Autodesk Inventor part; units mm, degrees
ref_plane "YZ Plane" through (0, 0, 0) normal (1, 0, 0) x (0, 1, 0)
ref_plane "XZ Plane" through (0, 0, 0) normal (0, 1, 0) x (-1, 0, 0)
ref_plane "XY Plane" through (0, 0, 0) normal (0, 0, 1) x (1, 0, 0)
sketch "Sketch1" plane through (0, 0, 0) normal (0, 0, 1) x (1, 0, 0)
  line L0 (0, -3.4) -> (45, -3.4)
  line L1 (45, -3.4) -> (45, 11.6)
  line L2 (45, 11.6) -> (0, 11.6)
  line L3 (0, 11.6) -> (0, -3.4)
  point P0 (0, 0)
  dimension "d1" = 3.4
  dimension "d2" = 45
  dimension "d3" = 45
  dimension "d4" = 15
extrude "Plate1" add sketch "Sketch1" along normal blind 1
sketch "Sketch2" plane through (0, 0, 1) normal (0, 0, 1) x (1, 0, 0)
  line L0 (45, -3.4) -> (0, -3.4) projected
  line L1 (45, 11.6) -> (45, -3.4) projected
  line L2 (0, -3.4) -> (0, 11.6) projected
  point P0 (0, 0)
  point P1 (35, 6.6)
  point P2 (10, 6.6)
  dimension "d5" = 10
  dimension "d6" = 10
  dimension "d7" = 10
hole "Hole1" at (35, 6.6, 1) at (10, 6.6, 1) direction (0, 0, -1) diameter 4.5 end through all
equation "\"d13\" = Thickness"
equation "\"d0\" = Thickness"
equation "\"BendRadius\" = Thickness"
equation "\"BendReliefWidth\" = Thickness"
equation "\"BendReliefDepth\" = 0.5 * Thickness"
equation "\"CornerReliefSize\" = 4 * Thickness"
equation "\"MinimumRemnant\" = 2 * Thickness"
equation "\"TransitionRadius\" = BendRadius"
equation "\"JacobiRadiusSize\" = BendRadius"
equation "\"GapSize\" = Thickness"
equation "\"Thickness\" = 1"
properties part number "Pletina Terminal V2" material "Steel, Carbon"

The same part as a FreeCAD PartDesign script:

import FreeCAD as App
import Part
import Sketcher

V = App.Vector

doc = App.newDocument("Part")
body = doc.addObject("PartDesign::Body", "Body")

sketch1 = body.newObject("Sketcher::SketchObject", "Sketch")
sketch1.AttachmentSupport = (doc.getObject("XY_Plane"), [""])
sketch1.MapMode = "FlatFace"
sketch1.addGeometry(Part.LineSegment(V(0, 12, 0), V(0, -3, 0)), False)
sketch1.addGeometry(Part.LineSegment(V(0, -3, 0), V(45, -3, 0)), False)
sketch1.addGeometry(Part.LineSegment(V(45, -3, 0), V(45, 12, 0)), False)
sketch1.addGeometry(Part.LineSegment(V(45, 12, 0), V(0, 12, 0)), False)
sketch1.addConstraint(Sketcher.Constraint("Coincident", 0, 2, 1, 1))
sketch1.addConstraint(Sketcher.Constraint("Coincident", 1, 2, 2, 1))
sketch1.addConstraint(Sketcher.Constraint("Coincident", 2, 2, 3, 1))
sketch1.addConstraint(Sketcher.Constraint("Coincident", 3, 2, 0, 1))
sketch1.addConstraint(Sketcher.Constraint("Vertical", 0))
sketch1.addConstraint(Sketcher.Constraint("Horizontal", 1))
sketch1.addConstraint(Sketcher.Constraint("Vertical", 2))
sketch1.addConstraint(Sketcher.Constraint("Horizontal", 3))
sketch1.addConstraint(Sketcher.Constraint("PointOnObject", 0, 2, -2))
sketch1.addConstraint(Sketcher.Constraint("DistanceX", 1, 1, 1, 2, 45.0))
sketch1.addConstraint(Sketcher.Constraint("DistanceY", 0, 2, 0, 1, 15.0))
sketch1.addConstraint(Sketcher.Constraint("DistanceY", 0, 2, -1, 1, 3.4))
pad1 = body.newObject("PartDesign::Pad", "Pad")
pad1.Profile = sketch1
pad1.Length = 1

sketch2 = body.newObject("Sketcher::SketchObject", "Sketch001")
sketch2.AttachmentSupport = (doc.getObject("XY_Plane"), [""])
sketch2.MapMode = "FlatFace"
sketch2.AttachmentOffset = App.Placement(V(0, 0, 1), App.Rotation())
sketch2.addGeometry(Part.Circle(V(35, 6.6, 0), V(0, 0, 1), 2.2), False)
sketch2.addGeometry(Part.Circle(V(10, 6.6, 0), V(0, 0, 1), 2.2), False)
sketch2.addConstraint(Sketcher.Constraint("Equal", 0, 1))
sketch2.addConstraint(Sketcher.Constraint("Horizontal", 0, 3, 1, 3))
sketch2.addConstraint(Sketcher.Constraint("Diameter", 0, 4.5))
sketch2.addConstraint(Sketcher.Constraint("DistanceX", -1, 1, 0, 3, 35.0))
sketch2.addConstraint(Sketcher.Constraint("DistanceX", -1, 1, 1, 3, 10.0))
sketch2.addConstraint(Sketcher.Constraint("DistanceY", -1, 1, 0, 3, 6.6))
doc.recompute()
hole = body.newObject("PartDesign::Hole", "Hole")
hole.Profile = sketch2
hole.ThreadType = "None"
hole.Diameter = 4.5
hole.DepthType = "ThroughAll"

doc.recompute()
